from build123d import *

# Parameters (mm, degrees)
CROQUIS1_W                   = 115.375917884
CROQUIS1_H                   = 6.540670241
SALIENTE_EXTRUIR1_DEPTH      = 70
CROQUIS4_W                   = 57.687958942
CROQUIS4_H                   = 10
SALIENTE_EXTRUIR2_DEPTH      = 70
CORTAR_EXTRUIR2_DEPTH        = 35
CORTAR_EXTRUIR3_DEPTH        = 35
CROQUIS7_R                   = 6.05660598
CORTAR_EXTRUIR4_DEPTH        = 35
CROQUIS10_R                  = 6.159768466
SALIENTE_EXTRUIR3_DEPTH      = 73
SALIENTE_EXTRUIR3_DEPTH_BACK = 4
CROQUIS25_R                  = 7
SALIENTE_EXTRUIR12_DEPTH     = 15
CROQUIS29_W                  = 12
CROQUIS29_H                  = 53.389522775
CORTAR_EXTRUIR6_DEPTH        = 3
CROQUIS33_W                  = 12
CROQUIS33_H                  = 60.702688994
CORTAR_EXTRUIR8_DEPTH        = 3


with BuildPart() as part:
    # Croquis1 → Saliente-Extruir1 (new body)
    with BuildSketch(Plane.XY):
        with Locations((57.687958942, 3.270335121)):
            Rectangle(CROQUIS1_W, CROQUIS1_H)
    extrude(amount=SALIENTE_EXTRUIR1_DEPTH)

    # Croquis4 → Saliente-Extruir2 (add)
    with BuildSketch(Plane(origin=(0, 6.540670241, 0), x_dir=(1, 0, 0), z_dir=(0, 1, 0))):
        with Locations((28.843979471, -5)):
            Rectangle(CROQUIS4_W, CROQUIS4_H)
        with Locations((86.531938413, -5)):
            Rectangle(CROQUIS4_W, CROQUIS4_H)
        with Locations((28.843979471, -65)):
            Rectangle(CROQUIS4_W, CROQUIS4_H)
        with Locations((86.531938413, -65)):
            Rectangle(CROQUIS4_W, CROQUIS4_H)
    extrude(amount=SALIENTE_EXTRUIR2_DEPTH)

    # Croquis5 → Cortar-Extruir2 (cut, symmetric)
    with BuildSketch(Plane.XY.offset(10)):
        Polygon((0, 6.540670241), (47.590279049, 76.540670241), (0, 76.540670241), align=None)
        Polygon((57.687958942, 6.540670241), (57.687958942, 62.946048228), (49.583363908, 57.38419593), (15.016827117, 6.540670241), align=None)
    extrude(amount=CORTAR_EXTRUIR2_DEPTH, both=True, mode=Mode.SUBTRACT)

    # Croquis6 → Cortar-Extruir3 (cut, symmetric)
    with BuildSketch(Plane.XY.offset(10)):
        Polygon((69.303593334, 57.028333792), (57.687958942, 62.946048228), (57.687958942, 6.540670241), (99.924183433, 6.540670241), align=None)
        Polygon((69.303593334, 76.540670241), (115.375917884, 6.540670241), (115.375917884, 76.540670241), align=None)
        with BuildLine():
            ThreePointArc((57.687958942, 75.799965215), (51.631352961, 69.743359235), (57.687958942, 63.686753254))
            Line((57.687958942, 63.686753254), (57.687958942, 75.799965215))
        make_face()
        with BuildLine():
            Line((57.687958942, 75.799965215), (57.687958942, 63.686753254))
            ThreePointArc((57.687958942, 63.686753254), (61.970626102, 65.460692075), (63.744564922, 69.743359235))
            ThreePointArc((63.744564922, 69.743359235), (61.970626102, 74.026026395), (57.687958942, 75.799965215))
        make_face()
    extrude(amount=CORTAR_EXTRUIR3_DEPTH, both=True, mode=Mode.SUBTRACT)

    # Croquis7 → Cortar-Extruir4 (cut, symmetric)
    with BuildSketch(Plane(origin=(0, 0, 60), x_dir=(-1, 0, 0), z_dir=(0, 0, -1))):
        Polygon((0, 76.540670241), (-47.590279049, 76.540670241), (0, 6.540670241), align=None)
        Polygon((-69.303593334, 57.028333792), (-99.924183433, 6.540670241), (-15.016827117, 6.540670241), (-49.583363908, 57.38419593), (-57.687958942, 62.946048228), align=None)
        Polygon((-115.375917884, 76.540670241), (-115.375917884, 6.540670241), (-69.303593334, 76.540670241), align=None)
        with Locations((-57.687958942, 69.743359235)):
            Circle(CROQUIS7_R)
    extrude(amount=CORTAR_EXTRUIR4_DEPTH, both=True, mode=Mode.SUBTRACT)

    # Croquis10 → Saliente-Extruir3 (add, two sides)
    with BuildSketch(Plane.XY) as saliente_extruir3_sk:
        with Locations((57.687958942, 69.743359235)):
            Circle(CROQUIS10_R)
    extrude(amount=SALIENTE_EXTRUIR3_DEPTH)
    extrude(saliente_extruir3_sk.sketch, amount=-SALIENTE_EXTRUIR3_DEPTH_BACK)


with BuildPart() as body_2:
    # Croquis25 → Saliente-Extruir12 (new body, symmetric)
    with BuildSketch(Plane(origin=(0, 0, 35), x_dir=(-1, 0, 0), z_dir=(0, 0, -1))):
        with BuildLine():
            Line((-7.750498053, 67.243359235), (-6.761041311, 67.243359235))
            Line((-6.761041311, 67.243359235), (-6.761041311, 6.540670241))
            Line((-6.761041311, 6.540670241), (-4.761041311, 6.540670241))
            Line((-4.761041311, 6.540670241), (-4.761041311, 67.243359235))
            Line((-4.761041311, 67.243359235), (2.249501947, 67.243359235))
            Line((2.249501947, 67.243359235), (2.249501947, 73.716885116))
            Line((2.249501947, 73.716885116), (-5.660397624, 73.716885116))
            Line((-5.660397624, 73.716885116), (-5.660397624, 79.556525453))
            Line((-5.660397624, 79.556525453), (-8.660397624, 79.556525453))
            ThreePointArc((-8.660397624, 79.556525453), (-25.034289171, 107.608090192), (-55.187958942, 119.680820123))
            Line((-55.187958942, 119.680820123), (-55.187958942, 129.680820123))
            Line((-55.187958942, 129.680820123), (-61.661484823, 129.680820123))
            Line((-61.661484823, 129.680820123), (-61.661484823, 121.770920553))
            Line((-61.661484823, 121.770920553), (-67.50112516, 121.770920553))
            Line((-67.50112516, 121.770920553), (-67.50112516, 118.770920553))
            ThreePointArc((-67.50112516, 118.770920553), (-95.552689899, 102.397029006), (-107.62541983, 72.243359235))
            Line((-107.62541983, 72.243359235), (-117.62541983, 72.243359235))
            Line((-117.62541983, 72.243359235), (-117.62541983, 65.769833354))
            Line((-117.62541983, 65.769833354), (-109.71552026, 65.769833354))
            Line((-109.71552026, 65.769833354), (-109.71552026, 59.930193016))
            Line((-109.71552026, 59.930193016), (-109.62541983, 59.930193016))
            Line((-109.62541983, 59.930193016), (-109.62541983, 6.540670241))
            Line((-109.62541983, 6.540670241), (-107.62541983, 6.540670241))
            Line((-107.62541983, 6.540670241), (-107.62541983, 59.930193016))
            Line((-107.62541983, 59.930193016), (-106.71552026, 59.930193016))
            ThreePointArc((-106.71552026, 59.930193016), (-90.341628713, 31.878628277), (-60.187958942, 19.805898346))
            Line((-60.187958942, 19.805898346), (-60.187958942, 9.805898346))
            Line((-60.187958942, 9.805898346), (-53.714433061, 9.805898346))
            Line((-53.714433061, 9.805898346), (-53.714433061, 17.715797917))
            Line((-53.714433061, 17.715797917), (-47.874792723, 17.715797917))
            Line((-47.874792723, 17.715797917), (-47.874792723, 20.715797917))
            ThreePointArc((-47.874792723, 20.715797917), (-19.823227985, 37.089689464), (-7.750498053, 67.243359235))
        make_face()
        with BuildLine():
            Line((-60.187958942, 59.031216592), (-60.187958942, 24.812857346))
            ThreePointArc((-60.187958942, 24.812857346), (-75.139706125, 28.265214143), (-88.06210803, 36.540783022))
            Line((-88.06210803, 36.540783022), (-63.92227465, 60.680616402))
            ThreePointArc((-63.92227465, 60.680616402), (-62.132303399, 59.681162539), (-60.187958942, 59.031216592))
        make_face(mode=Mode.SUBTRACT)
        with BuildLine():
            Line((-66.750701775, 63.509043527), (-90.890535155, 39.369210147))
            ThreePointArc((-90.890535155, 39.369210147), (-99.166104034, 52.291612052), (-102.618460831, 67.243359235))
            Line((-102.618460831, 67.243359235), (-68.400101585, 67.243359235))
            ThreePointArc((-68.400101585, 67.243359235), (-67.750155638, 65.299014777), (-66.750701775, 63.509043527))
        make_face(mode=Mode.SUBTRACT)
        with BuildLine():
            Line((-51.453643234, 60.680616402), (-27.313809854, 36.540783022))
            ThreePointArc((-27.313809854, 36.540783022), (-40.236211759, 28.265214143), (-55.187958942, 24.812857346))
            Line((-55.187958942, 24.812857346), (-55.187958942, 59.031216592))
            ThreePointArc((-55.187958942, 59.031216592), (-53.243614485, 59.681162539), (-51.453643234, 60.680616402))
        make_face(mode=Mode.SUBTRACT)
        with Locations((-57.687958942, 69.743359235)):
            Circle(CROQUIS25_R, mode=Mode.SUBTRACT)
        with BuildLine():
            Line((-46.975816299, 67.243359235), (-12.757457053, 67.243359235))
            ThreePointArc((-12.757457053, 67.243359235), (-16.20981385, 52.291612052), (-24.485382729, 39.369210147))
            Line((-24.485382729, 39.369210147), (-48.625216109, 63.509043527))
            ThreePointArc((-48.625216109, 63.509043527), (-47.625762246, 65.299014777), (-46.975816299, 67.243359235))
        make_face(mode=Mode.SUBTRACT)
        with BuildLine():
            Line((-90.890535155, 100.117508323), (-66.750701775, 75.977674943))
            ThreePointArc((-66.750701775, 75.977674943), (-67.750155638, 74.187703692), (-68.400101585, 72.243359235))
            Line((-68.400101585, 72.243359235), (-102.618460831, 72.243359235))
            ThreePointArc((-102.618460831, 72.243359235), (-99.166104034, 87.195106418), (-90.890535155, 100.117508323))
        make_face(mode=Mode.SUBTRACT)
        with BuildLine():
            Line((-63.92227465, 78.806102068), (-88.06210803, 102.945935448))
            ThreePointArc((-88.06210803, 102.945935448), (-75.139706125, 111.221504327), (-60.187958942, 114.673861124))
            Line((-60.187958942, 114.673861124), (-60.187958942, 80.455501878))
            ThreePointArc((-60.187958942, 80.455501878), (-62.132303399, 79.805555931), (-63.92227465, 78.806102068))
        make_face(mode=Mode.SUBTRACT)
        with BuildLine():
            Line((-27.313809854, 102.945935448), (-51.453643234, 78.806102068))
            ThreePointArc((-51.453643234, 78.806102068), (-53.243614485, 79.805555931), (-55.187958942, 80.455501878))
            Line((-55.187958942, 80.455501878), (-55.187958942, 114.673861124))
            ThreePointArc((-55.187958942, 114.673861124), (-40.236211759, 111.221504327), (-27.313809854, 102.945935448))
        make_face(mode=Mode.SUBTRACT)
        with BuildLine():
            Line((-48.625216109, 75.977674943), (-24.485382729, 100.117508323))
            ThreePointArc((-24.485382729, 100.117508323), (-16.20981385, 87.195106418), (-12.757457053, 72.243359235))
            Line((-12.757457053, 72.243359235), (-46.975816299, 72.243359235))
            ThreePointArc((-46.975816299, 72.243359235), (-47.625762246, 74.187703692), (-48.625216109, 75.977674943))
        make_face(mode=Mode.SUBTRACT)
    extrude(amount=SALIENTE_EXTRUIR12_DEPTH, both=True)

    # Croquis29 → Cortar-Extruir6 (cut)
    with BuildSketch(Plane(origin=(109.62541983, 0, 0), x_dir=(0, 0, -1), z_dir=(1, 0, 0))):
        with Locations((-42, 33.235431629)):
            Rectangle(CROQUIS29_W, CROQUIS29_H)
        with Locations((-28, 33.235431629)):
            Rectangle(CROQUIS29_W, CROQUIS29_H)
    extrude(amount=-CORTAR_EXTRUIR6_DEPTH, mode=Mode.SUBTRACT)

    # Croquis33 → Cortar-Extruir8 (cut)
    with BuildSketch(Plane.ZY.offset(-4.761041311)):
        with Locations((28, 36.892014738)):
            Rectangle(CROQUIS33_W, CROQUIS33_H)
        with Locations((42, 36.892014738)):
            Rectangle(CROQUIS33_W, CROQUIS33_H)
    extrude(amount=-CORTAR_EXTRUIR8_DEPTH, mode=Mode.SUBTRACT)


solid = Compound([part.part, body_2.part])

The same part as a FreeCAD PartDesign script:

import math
import FreeCAD as App
import Part
import Sketcher
Q = App.Units.Quantity


def add_polygon(sketch, points):
    """Adds a closed chain of lines whose ends are joined by coincident constraints."""
    first, n = sketch.GeometryCount, len(points)
    for a, b in zip(points, points[1:] + points[:1]):
        sketch.addGeometry(Part.LineSegment(App.Vector(*a, 0), App.Vector(*b, 0)), False)
    for i in range(n):
        sketch.addConstraint(Sketcher.Constraint("Coincident", first + i, 2, first + (i + 1) % n, 1))

doc = App.newDocument("Part")
body = doc.addObject("PartDesign::Body", "Body")

sketch1 = body.newObject("Sketcher::SketchObject", "Sketch")
sketch1.AttachmentSupport = (doc.getObject("XY_Plane"), [""])
sketch1.MapMode = "FlatFace"
add_polygon(sketch1, [(0, 7), (0, 0), (115, 0), (115, 7)])
sketch1.addConstraint([
    Sketcher.Constraint("Vertical", 0),
    Sketcher.Constraint("Horizontal", 1),
    Sketcher.Constraint("Vertical", 2),
    Sketcher.Constraint("Horizontal", 3),
    Sketcher.Constraint("Coincident", 0, 2, -1, 1),
    Sketcher.Constraint("DistanceY", 0, 2, 0, 1, Q("6.54067 mm")),
    Sketcher.Constraint("DistanceX", 1, 1, 1, 2, Q("115.375918 mm")),
])
pad1 = body.newObject("PartDesign::Pad", "Pad")
pad1.Profile = sketch1
pad1.Length = 70

sketch2 = body.newObject("Sketcher::SketchObject", "Sketch001")
sketch2.AttachmentSupport = (doc.getObject("XZ_Plane"), [""])
sketch2.MapMode = "FlatFace"
sketch2.AttachmentOffset = App.Placement(App.Vector(0, 0, -6.54067), App.Rotation())
add_polygon(sketch2, [(0, 0), (0, 10), (115, 10), (115, 0)])
add_polygon(sketch2, [(0, 60), (0, 70), (115, 70), (115, 60)])
sketch2.addConstraint([
    Sketcher.Constraint("Vertical", 0),
    Sketcher.Constraint("Horizontal", 1),
    Sketcher.Constraint("Vertical", 2),
    Sketcher.Constraint("Horizontal", 3),
    Sketcher.Constraint("Vertical", 4),
    Sketcher.Constraint("Horizontal", 5),
    Sketcher.Constraint("Vertical", 6),
    Sketcher.Constraint("Horizontal", 7),
    Sketcher.Constraint("Coincident", 3, 2, -1, 1),
    Sketcher.Constraint("PointOnObject", 4, 2, -2),
    Sketcher.Constraint("Vertical", 2, 2, 5, 2),
    Sketcher.Constraint("Equal", 2, 4),
    Sketcher.Constraint("DistanceY", 0, 1, 0, 2, Q("10 mm")),
    Sketcher.Constraint("DistanceY", -1, 1, 4, 2, Q("70 mm")),
    Sketcher.Constraint("DistanceX", 1, 1, 1, 2, Q("115.375918 mm")),
])
pad2 = body.newObject("PartDesign::Pad", "Pad001")
pad2.Profile = sketch2
pad2.Length = 70
pad2.Reversed = True

sketch3 = body.newObject("Sketcher::SketchObject", "Sketch002")
sketch3.AttachmentSupport = (doc.getObject("XY_Plane"), [""])
sketch3.MapMode = "FlatFace"
sketch3.AttachmentOffset = App.Placement(App.Vector(0, 0, 10), App.Rotation())
add_polygon(sketch3, [(0, 7), (48, 77), (0, 77)])
add_polygon(sketch3, [(58, 7), (58, 63), (50, 57), (15, 7)])
sketch3.addConstraint([
    Sketcher.Constraint("Horizontal", 1),
    Sketcher.Constraint("Vertical", 2),
    Sketcher.Constraint("Vertical", 3),
    Sketcher.Constraint("Horizontal", 6),
    Sketcher.Constraint("PointOnObject", 1, 2, -2),
    Sketcher.Constraint("Parallel", 0, 5),
    Sketcher.Constraint("Horizontal", 2, 2, 5, 2),
    Sketcher.Constraint("DistanceY", 2, 2, 2, 1, Q("70 mm")),
    Sketcher.Constraint("DistanceX", 1, 2, 1, 1, Q("47.590279 mm")),
    Sketcher.Constraint("DistanceX", 6, 1, 6, 2, Q("42.671132 mm")),
    Sketcher.Constraint("Distance", 4, Q("9.829479 mm")),
    Sketcher.Constraint("Distance", 5, Q("61.480969 mm")),
    Sketcher.Constraint("DistanceY", -1, 1, 0, 2, Q("76.54067 mm")),
    Sketcher.Constraint("DistanceX", -1, 1, 3, 2, Q("57.687959 mm")),
])
pocket1 = body.newObject("PartDesign::Pocket", "Pocket")
pocket1.Profile = sketch3
pocket1.Length = 70
pocket1.Midplane = True

sketch4 = body.newObject("Sketcher::SketchObject", "Sketch003")
sketch4.AttachmentSupport = (doc.getObject("XY_Plane"), [""])
sketch4.MapMode = "FlatFace"
sketch4.AttachmentOffset = App.Placement(App.Vector(0, 0, 10), App.Rotation())
add_polygon(sketch4, [(69, 57), (58, 63), (58, 7), (100, 7)])
add_polygon(sketch4, [(69, 77), (115, 7), (115, 77)])
sketch4.addGeometry(Part.ArcOfCircle(Part.Circle(App.Vector(58, 70, 0), App.Vector(0, 0, 1), 6), math.radians(90), math.radians(270)), False)
sketch4.addGeometry(Part.ArcOfCircle(Part.Circle(App.Vector(58, 70, 0), App.Vector(0, 0, 1), 6), math.radians(-90), math.radians(0)), False)
sketch4.addGeometry(Part.ArcOfCircle(Part.Circle(App.Vector(58, 70, 0), App.Vector(0, 0, 1), 6), math.radians(0), math.radians(90)), False)
sketch4.addConstraint([
    Sketcher.Constraint("Tangent", 7, 2, 8, 1),
    Sketcher.Constraint("Tangent", 8, 2, 9, 1),
    Sketcher.Constraint("Tangent", 9, 2, 7, 1),
    Sketcher.Constraint("Vertical", 1),
    Sketcher.Constraint("Horizontal", 2),
    Sketcher.Constraint("Vertical", 5),
    Sketcher.Constraint("Horizontal", 6),
    Sketcher.Constraint("Horizontal", 2, 2, 4, 2),
    Sketcher.Constraint("Horizontal", 9, 3, 8, 2),
    Sketcher.Constraint("Vertical", 9, 3, 0, 2),
    Sketcher.Constraint("Vertical", 3, 2, 6, 2),
    Sketcher.Constraint("Vertical", 1, 2, 7, 2),
    Sketcher.Constraint("Vertical", 7, 2, 9, 2),
    Sketcher.Constraint("DistanceY", 5, 1, 5, 2, Q("70 mm")),
    Sketcher.Constraint("Radius", 7, Q("6.056606 mm")),
    Sketcher.Constraint("DistanceX", 2, 1, 2, 2, Q("42.236224 mm")),
    Sketcher.Constraint("DistanceX", 6, 2, 6, 1, Q("46.072325 mm")),
    Sketcher.Constraint("DistanceY", 1, 2, 1, 1, Q("56.405378 mm")),
    Sketcher.Constraint("DistanceX", -1, 1, 7, 3, Q("57.687959 mm")),
    Sketcher.Constraint("DistanceY", -1, 1, 7, 3, Q("69.743359 mm")),
    Sketcher.Constraint("DistanceY", -1, 1, 0, 2, Q("62.946048 mm")),
    Sketcher.Constraint("DistanceX", 1, 2, 4, 2, Q("57.687959 mm")),
    Sketcher.Constraint("DistanceY", 3, 2, 7, 2, Q("6.658419 mm")),
])
pocket2 = body.newObject("PartDesign::Pocket", "Pocket001")
pocket2.Profile = sketch4
pocket2.Length = 70
pocket2.Midplane = True

sketch5 = body.newObject("Sketcher::SketchObject", "Sketch004")
sketch5.AttachmentSupport = (doc.getObject("XY_Plane"), [""])
sketch5.MapMode = "FlatFace"
sketch5.AttachmentOffset = App.Placement(App.Vector(0, 0, 60), App.Rotation())
add_polygon(sketch5, [(0, 77), (48, 77), (0, 7)])
add_polygon(sketch5, [(69, 57), (100, 7), (15, 7), (50, 57), (58, 63)])
add_polygon(sketch5, [(115, 77), (115, 7), (69, 77)])
sketch5.addGeometry(Part.Circle(App.Vector(58, 70, 0), App.Vector(0, 0, 1), 6), False)
sketch5.addConstraint([
    Sketcher.Constraint("Horizontal", 0),
    Sketcher.Constraint("Vertical", 2),
    Sketcher.Constraint("Horizontal", 4),
    Sketcher.Constraint("Vertical", 8),
    Sketcher.Constraint("Horizontal", 10),
    Sketcher.Constraint("PointOnObject", 1, 2, -2),
    Sketcher.Constraint("Parallel", 1, 5),
    Sketcher.Constraint("Horizontal", 1, 2, 3, 2),
    Sketcher.Constraint("Horizontal", 4, 2, 8, 2),
    Sketcher.Constraint("Horizontal", 2, 2, 9, 2),
    Sketcher.Constraint("Vertical", 11, 3, 6, 2),
    Sketcher.Constraint("Vertical", 7, 2, 9, 2),
    Sketcher.Constraint("DistanceY", 2, 1, 2, 2, Q("70 mm")),
    Sketcher.Constraint("Diameter", 11, Q("12.113212 mm")),
    Sketcher.Constraint("DistanceX", 0, 1, 0, 2, Q("47.590279 mm")),
    Sketcher.Constraint("Distance", 5, Q("61.480969 mm")),
    Sketcher.Constraint("Distance", 6, Q("9.829479 mm")),
    Sketcher.Constraint("DistanceX", 4, 2, 4, 1, Q("84.907356 mm")),
    Sketcher.Constraint("DistanceX", 10, 1, 10, 2, Q("46.072325 mm")),
    Sketcher.Constraint("DistanceX", -1, 1, 11, 3, Q("57.687959 mm")),
    Sketcher.Constraint("DistanceY", -1, 1, 11, 3, Q("69.743359 mm")),
    Sketcher.Constraint("DistanceY", -1, 1, 0, 2, Q("76.54067 mm")),
    Sketcher.Constraint("DistanceY", -1, 1, 6, 2, Q("62.946048 mm")),
    Sketcher.Constraint("DistanceX", 5, 2, 7, 2, Q("19.720229 mm")),
    Sketcher.Constraint("Distance", 3, Q("59.047648 mm")),
])
pocket3 = body.newObject("PartDesign::Pocket", "Pocket002")
pocket3.Profile = sketch5
pocket3.Length = 70
pocket3.Midplane = True

sketch6 = body.newObject("Sketcher::SketchObject", "Sketch005")
sketch6.AttachmentSupport = (doc.getObject("XY_Plane"), [""])
sketch6.MapMode = "FlatFace"
sketch6.addGeometry(Part.Circle(App.Vector(58, 70, 0), App.Vector(0, 0, 1), 6), False)
sketch6.addConstraint([
    Sketcher.Constraint("Diameter", 0, Q("12.319537 mm")),
    Sketcher.Constraint("DistanceX", -1, 1, 0, 3, Q("57.687959 mm")),
    Sketcher.Constraint("DistanceY", -1, 1, 0, 3, Q("69.743359 mm")),
])
pad3 = body.newObject("PartDesign::Pad", "Pad002")
pad3.Profile = sketch6
pad3.Type = "TwoLengths"
pad3.Length = 73
pad3.Length2 = 4
body2 = doc.addObject("PartDesign::Body", "Body001")

sketch7 = body2.newObject("Sketcher::SketchObject", "Sketch006")
sketch7.AttachmentSupport = (doc.getObject("XY_Plane001"), [""])
sketch7.MapMode = "FlatFace"
sketch7.AttachmentOffset = App.Placement(App.Vector(0, 0, 35), App.Rotation())
sketch7.addGeometry([
    Part.LineSegment(App.Vector(7.75, 67.24, 0), App.Vector(6.76, 67.24, 0)),
    Part.LineSegment(App.Vector(6.76, 67.24, 0), App.Vector(6.76, 6.54, 0)),
    Part.LineSegment(App.Vector(6.76, 6.54, 0), App.Vector(4.76, 6.54, 0)),
    Part.LineSegment(App.Vector(4.76, 6.54, 0), App.Vector(4.76, 67.24, 0)),
    Part.LineSegment(App.Vector(4.76, 67.24, 0), App.Vector(-2.25, 67.24, 0)),
    Part.LineSegment(App.Vector(-2.25, 67.24, 0), App.Vector(-2.25, 73.72, 0)),
    Part.LineSegment(App.Vector(-2.25, 73.72, 0), App.Vector(5.66, 73.72, 0)),
    Part.LineSegment(App.Vector(5.66, 73.72, 0), App.Vector(5.66, 79.56, 0)),
    Part.LineSegment(App.Vector(5.66, 79.56, 0), App.Vector(8.66, 79.56, 0)),
    Part.ArcOfCircle(Part.Circle(App.Vector(57.69, 69.74, 0), App.Vector(0, 0, 1), 50), math.radians(93), math.radians(169)),
    Part.LineSegment(App.Vector(55.19, 119.68, 0), App.Vector(55.19, 129.68, 0)),
    Part.LineSegment(App.Vector(55.19, 129.68, 0), App.Vector(61.66, 129.68, 0)),
    Part.LineSegment(App.Vector(61.66, 129.68, 0), App.Vector(61.66, 121.77, 0)),
    Part.LineSegment(App.Vector(61.66, 121.77, 0), App.Vector(67.5, 121.77, 0)),
    Part.LineSegment(App.Vector(67.5, 121.77, 0), App.Vector(67.5, 118.77, 0)),
    Part.ArcOfCircle(Part.Circle(App.Vector(57.69, 69.74, 0), App.Vector(0, 0, 1), 50), math.radians(3), math.radians(79)),
    Part.LineSegment(App.Vector(107.63, 72.24, 0), App.Vector(117.63, 72.24, 0)),
    Part.LineSegment(App.Vector(117.63, 72.24, 0), App.Vector(117.63, 65.77, 0)),
    Part.LineSegment(App.Vector(117.63, 65.77, 0), App.Vector(109.72, 65.77, 0)),
    Part.LineSegment(App.Vector(109.72, 65.77, 0), App.Vector(109.72, 59.93, 0)),
    Part.LineSegment(App.Vector(109.72, 59.93, 0), App.Vector(109.63, 59.93, 0)),
    Part.LineSegment(App.Vector(109.63, 59.93, 0), App.Vector(109.63, 6.54, 0)),
    Part.LineSegment(App.Vector(109.63, 6.54, 0), App.Vector(107.63, 6.54, 0)),
    Part.LineSegment(App.Vector(107.63, 6.54, 0), App.Vector(107.63, 59.93, 0)),
    Part.LineSegment(App.Vector(107.63, 59.93, 0), App.Vector(106.72, 59.93, 0)),
    Part.ArcOfCircle(Part.Circle(App.Vector(57.69, 69.74, 0), App.Vector(0, 0, 1), 50), math.radians(-87), math.radians(-11)),
    Part.LineSegment(App.Vector(60.19, 19.81, 0), App.Vector(60.19, 9.81, 0)),
    Part.LineSegment(App.Vector(60.19, 9.81, 0), App.Vector(53.71, 9.81, 0)),
    Part.LineSegment(App.Vector(53.71, 9.81, 0), App.Vector(53.71, 17.72, 0)),
    Part.LineSegment(App.Vector(53.71, 17.72, 0), App.Vector(47.87, 17.72, 0)),
    Part.LineSegment(App.Vector(47.87, 17.72, 0), App.Vector(47.87, 20.72, 0)),
    Part.ArcOfCircle(Part.Circle(App.Vector(57.69, 69.74, 0), App.Vector(0, 0, 1), 50), math.radians(-177), math.radians(-101)),
    Part.ArcOfCircle(Part.Circle(App.Vector(57.69, 69.74, 0), App.Vector(0, 0, 1), 11), math.radians(-77), math.radians(-55)),
    Part.LineSegment(App.Vector(60.19, 59.03, 0), App.Vector(60.19, 24.81, 0)),
    Part.ArcOfCircle(Part.Circle(App.Vector(57.69, 69.74, 0), App.Vector(0, 0, 1), 45), math.radians(-87), math.radians(-48)),
    Part.LineSegment(App.Vector(88.06, 36.54, 0), App.Vector(63.92, 60.68, 0)),
    Part.ArcOfCircle(Part.Circle(App.Vector(57.69, 69.74, 0), App.Vector(0, 0, 1), 11), math.radians(-35), math.radians(-13)),
    Part.LineSegment(App.Vector(66.75, 63.51, 0), App.Vector(90.89, 39.37, 0)),
    Part.ArcOfCircle(Part.Circle(App.Vector(57.69, 69.74, 0), App.Vector(0, 0, 1), 45), math.radians(-42), math.radians(-3)),
    Part.LineSegment(App.Vector(102.62, 67.24, 0), App.Vector(68.4, 67.24, 0)),
    Part.ArcOfCircle(Part.Circle(App.Vector(57.69, 69.74, 0), App.Vector(0, 0, 1), 11), math.radians(-125), math.radians(-103)),
    Part.LineSegment(App.Vector(51.45, 60.68, 0), App.Vector(27.31, 36.54, 0)),
    Part.ArcOfCircle(Part.Circle(App.Vector(57.69, 69.74, 0), App.Vector(0, 0, 1), 45), math.radians(-132), math.radians(-93)),
    Part.LineSegment(App.Vector(55.19, 24.81, 0), App.Vector(55.19, 59.03, 0)),
    Part.ArcOfCircle(Part.Circle(App.Vector(57.69, 69.74, 0), App.Vector(0, 0, 1), 11), math.radians(-167), math.radians(-145)),
    Part.LineSegment(App.Vector(46.98, 67.24, 0), App.Vector(12.76, 67.24, 0)),
    Part.ArcOfCircle(Part.Circle(App.Vector(57.69, 69.74, 0), App.Vector(0, 0, 1), 45), math.radians(-177), math.radians(-138)),
    Part.LineSegment(App.Vector(24.49, 39.37, 0), App.Vector(48.63, 63.51, 0)),
    Part.ArcOfCircle(Part.Circle(App.Vector(57.69, 69.74, 0), App.Vector(0, 0, 1), 45), math.radians(3), math.radians(42)),
    Part.LineSegment(App.Vector(90.89, 100.12, 0), App.Vector(66.75, 75.98, 0)),
    Part.ArcOfCircle(Part.Circle(App.Vector(57.69, 69.74, 0), App.Vector(0, 0, 1), 11), math.radians(13), math.radians(35)),
    Part.LineSegment(App.Vector(68.4, 72.24, 0), App.Vector(102.62, 72.24, 0)),
    Part.Circle(App.Vector(57.69, 69.74, 0), App.Vector(0, 0, 1), 7),
    Part.ArcOfCircle(Part.Circle(App.Vector(57.69, 69.74, 0), App.Vector(0, 0, 1), 11), math.radians(55), math.radians(77)),
    Part.LineSegment(App.Vector(63.92, 78.81, 0), App.Vector(88.06, 102.95, 0)),
    Part.ArcOfCircle(Part.Circle(App.Vector(57.69, 69.74, 0), App.Vector(0, 0, 1), 45), math.radians(48), math.radians(87)),
    Part.LineSegment(App.Vector(60.19, 114.67, 0), App.Vector(60.19, 80.46, 0)),
    Part.ArcOfCircle(Part.Circle(App.Vector(57.69, 69.74, 0), App.Vector(0, 0, 1), 11), math.radians(145), math.radians(167)),
    Part.LineSegment(App.Vector(48.63, 75.98, 0), App.Vector(24.49, 100.12, 0)),
    Part.ArcOfCircle(Part.Circle(App.Vector(57.69, 69.74, 0), App.Vector(0, 0, 1), 45), math.radians(138), math.radians(177)),
    Part.LineSegment(App.Vector(12.76, 72.24, 0), App.Vector(46.98, 72.24, 0)),
    Part.ArcOfCircle(Part.Circle(App.Vector(57.69, 69.74, 0), App.Vector(0, 0, 1), 45), math.radians(93), math.radians(132)),
    Part.LineSegment(App.Vector(27.31, 102.95, 0), App.Vector(51.45, 78.81, 0)),
    Part.ArcOfCircle(Part.Circle(App.Vector(57.69, 69.74, 0), App.Vector(0, 0, 1), 11), math.radians(103), math.radians(125)),
    Part.LineSegment(App.Vector(55.19, 80.46, 0), App.Vector(55.19, 114.67, 0)),
], False)
sketch7.addConstraint([
    Sketcher.Constraint("Coincident", 0, 2, 1, 1),
    Sketcher.Constraint("Coincident", 1, 2, 2, 1),
    Sketcher.Constraint("Coincident", 2, 2, 3, 1),
    Sketcher.Constraint("Coincident", 3, 2, 4, 1),
    Sketcher.Constraint("Coincident", 4, 2, 5, 1),
    Sketcher.Constraint("Coincident", 5, 2, 6, 1),
    Sketcher.Constraint("Coincident", 6, 2, 7, 1),
    Sketcher.Constraint("Coincident", 7, 2, 8, 1),
    Sketcher.Constraint("Coincident", 8, 2, 9, 2),
    Sketcher.Constraint("Coincident", 9, 1, 10, 1),
    Sketcher.Constraint("Coincident", 10, 2, 11, 1),
    Sketcher.Constraint("Coincident", 11, 2, 12, 1),
    Sketcher.Constraint("Coincident", 12, 2, 13, 1),
    Sketcher.Constraint("Coincident", 13, 2, 14, 1),
    Sketcher.Constraint("Coincident", 14, 2, 15, 2),
    Sketcher.Constraint("Coincident", 15, 1, 16, 1),
    Sketcher.Constraint("Coincident", 16, 2, 17, 1),
    Sketcher.Constraint("Coincident", 17, 2, 18, 1),
    Sketcher.Constraint("Coincident", 18, 2, 19, 1),
    Sketcher.Constraint("Coincident", 19, 2, 20, 1),
    Sketcher.Constraint("Coincident", 20, 2, 21, 1),
    Sketcher.Constraint("Coincident", 21, 2, 22, 1),
    Sketcher.Constraint("Coincident", 22, 2, 23, 1),
    Sketcher.Constraint("Coincident", 23, 2, 24, 1),
    Sketcher.Constraint("Coincident", 24, 2, 25, 2),
    Sketcher.Constraint("Coincident", 25, 1, 26, 1),
    Sketcher.Constraint("Coincident", 26, 2, 27, 1),
    Sketcher.Constraint("Coincident", 27, 2, 28, 1),
    Sketcher.Constraint("Coincident", 28, 2, 29, 1),
    Sketcher.Constraint("Coincident", 29, 2, 30, 1),
    Sketcher.Constraint("Coincident", 30, 2, 31, 2),
    Sketcher.Constraint("Coincident", 31, 1, 0, 1),
    Sketcher.Constraint("Coincident", 32, 1, 33, 1),
    Sketcher.Constraint("Coincident", 33, 2, 34, 1),
    Sketcher.Constraint("Coincident", 34, 2, 35, 1),
    Sketcher.Constraint("Coincident", 35, 2, 32, 2),
    Sketcher.Constraint("Coincident", 36, 1, 37, 1),
    Sketcher.Constraint("Coincident", 37, 2, 38, 1),
    Sketcher.Constraint("Coincident", 38, 2, 39, 1),
    Sketcher.Constraint("Coincident", 39, 2, 36, 2),
    Sketcher.Constraint("Coincident", 40, 1, 41, 1),
    Sketcher.Constraint("Coincident", 41, 2, 42, 1),
    Sketcher.Constraint("Coincident", 42, 2, 43, 1),
    Sketcher.Constraint("Coincident", 43, 2, 40, 2),
    Sketcher.Constraint("Coincident", 44, 1, 45, 1),
    Sketcher.Constraint("Coincident", 45, 2, 46, 1),
    Sketcher.Constraint("Coincident", 46, 2, 47, 1),
    Sketcher.Constraint("Coincident", 47, 2, 44, 2),
    Sketcher.Constraint("Coincident", 48, 2, 49, 1),
    Sketcher.Constraint("Coincident", 49, 2, 50, 2),
    Sketcher.Constraint("Coincident", 50, 1, 51, 1),
    Sketcher.Constraint("Coincident", 51, 2, 48, 1),
    Sketcher.Constraint("Coincident", 53, 1, 54, 1),
    Sketcher.Constraint("Coincident", 54, 2, 55, 1),
    Sketcher.Constraint("Coincident", 55, 2, 56, 1),
    Sketcher.Constraint("Coincident", 56, 2, 53, 2),
    Sketcher.Constraint("Coincident", 57, 1, 58, 1),
    Sketcher.Constraint("Coincident", 58, 2, 59, 1),
    Sketcher.Constraint("Coincident", 59, 2, 60, 1),
    Sketcher.Constraint("Coincident", 60, 2, 57, 2),
    Sketcher.Constraint("Coincident", 61, 2, 62, 1),
    Sketcher.Constraint("Coincident", 62, 2, 63, 2),
    Sketcher.Constraint("Coincident", 63, 1, 64, 1),
    Sketcher.Constraint("Coincident", 64, 2, 61, 1),
    Sketcher.Constraint("Horizontal", 0),
    Sketcher.Constraint("Vertical", 1),
    Sketcher.Constraint("Horizontal", 2),
    Sketcher.Constraint("Vertical", 3),
    Sketcher.Constraint("Horizontal", 4),
    Sketcher.Constraint("Vertical", 5),
    Sketcher.Constraint("Horizontal", 6),
    Sketcher.Constraint("Vertical", 7),
    Sketcher.Constraint("Horizontal", 8),
    Sketcher.Constraint("Vertical", 10),
    Sketcher.Constraint("Horizontal", 11),
    Sketcher.Constraint("Vertical", 12),
    Sketcher.Constraint("Horizontal", 13),
    Sketcher.Constraint("Vertical", 14),
    Sketcher.Constraint("Horizontal", 16),
    Sketcher.Constraint("Vertical", 17),
    Sketcher.Constraint("Horizontal", 18),
    Sketcher.Constraint("Vertical", 19),
    Sketcher.Constraint("Horizontal", 20),
    Sketcher.Constraint("Vertical", 21),
    Sketcher.Constraint("Horizontal", 22),
    Sketcher.Constraint("Vertical", 23),
    Sketcher.Constraint("Horizontal", 24),
    Sketcher.Constraint("Vertical", 26),
    Sketcher.Constraint("Horizontal", 27),
    Sketcher.Constraint("Vertical", 28),
    Sketcher.Constraint("Horizontal", 29),
    Sketcher.Constraint("Vertical", 30),
    Sketcher.Constraint("Vertical", 33),
    Sketcher.Constraint("Horizontal", 39),
    Sketcher.Constraint("Vertical", 43),
    Sketcher.Constraint("Horizontal", 45),
    Sketcher.Constraint("Horizontal", 51),
    Sketcher.Constraint("Vertical", 56),
    Sketcher.Constraint("Horizontal", 60),
    Sketcher.Constraint("Vertical", 64),
    Sketcher.Constraint("Coincident", 15, 3, 9, 3),
    Sketcher.Constraint("Coincident", 25, 3, 9, 3),
    Sketcher.Constraint("Coincident", 31, 3, 9, 3),
    Sketcher.Constraint("Coincident", 32, 3, 9, 3),
    Sketcher.Constraint("Coincident", 34, 3, 9, 3),
    Sketcher.Constraint("Coincident", 36, 3, 9, 3),
    Sketcher.Constraint("Coincident", 38, 3, 9, 3),
    Sketcher.Constraint("Coincident", 40, 3, 9, 3),
    Sketcher.Constraint("Coincident", 42, 3, 9, 3),
    Sketcher.Constraint("Coincident", 44, 3, 9, 3),
    Sketcher.Constraint("Coincident", 46, 3, 9, 3),
    Sketcher.Constraint("Coincident", 48, 3, 9, 3),
    Sketcher.Constraint("Coincident", 50, 3, 9, 3),
    Sketcher.Constraint("Coincident", 52, 3, 9, 3),
    Sketcher.Constraint("Coincident", 53, 3, 9, 3),
    Sketcher.Constraint("Coincident", 55, 3, 9, 3),
    Sketcher.Constraint("Coincident", 57, 3, 9, 3),
    Sketcher.Constraint("Coincident", 59, 3, 9, 3),
    Sketcher.Constraint("Coincident", 61, 3, 9, 3),
    Sketcher.Constraint("Coincident", 63, 3, 9, 3),
    Sketcher.Constraint("Equal", 9, 15),
    Sketcher.Constraint("Equal", 15, 25),
    Sketcher.Constraint("Equal", 25, 31),
    Sketcher.Constraint("Equal", 32, 36),
    Sketcher.Constraint("Equal", 34, 38),
    Sketcher.Constraint("Equal", 36, 40),
    Sketcher.Constraint("Equal", 38, 42),
    Sketcher.Constraint("Equal", 40, 44),
    Sketcher.Constraint("Equal", 42, 46),
    Sketcher.Constraint("Equal", 46, 48),
    Sketcher.Constraint("Equal", 44, 50),
    Sketcher.Constraint("Equal", 50, 53),
    Sketcher.Constraint("Equal", 48, 55),
    Sketcher.Constraint("Equal", 53, 57),
    Sketcher.Constraint("Equal", 55, 59),
    Sketcher.Constraint("Equal", 59, 61),
    Sketcher.Constraint("Equal", 57, 63),
    Sketcher.Constraint("Parallel", 35, 37),
    Sketcher.Constraint("Perpendicular", 37, 41),
    Sketcher.Constraint("Parallel", 41, 47),
    Sketcher.Constraint("Parallel", 47, 49),
    Sketcher.Constraint("Parallel", 49, 54),
    Sketcher.Constraint("Perpendicular", 54, 58),
    Sketcher.Constraint("Parallel", 58, 62),
    Sketcher.Constraint("Horizontal", 0, 2, 3, 2),
    Sketcher.Constraint("Horizontal", 2, 2, 21, 2),
    Sketcher.Constraint("Horizontal", 20, 2, 23, 2),
    Sketcher.Constraint("Horizontal", 31, 1, 38, 2),
    Sketcher.Constraint("Horizontal", 35, 2, 40, 1),
    Sketcher.Constraint("Horizontal", 34, 2, 41, 2),
    Sketcher.Constraint("Horizontal", 33, 2, 42, 2),
    Sketcher.Constraint("Horizontal", 39, 2, 44, 1),
    Sketcher.Constraint("Horizontal", 37, 2, 46, 2),
    Sketcher.Constraint("Horizontal", 16, 2, 50, 1),
    Sketcher.Constraint("Horizontal", 49, 2, 57, 1),
    Sketcher.Constraint("Horizontal", 51, 2, 59, 2),
    Sketcher.Constraint("Horizontal", 54, 2, 61, 2),
    Sketcher.Constraint("Horizontal", 56, 2, 63, 1),
    Sketcher.Constraint("Vertical", 15, 1, 22, 2),
    Sketcher.Constraint("Vertical", 26, 2, 32, 1),
    Sketcher.Constraint("Vertical", 10, 2, 42, 2),
    Sketcher.Constraint("Vertical", 37, 2, 48, 2),
    Sketcher.Constraint("Vertical", 39, 2, 50, 1),
    Sketcher.Constraint("Vertical", 35, 2, 53, 1),
    Sketcher.Constraint("Vertical", 33, 2, 55, 2),
    Sketcher.Constraint("Equal", 6, 18),
    Sketcher.Constraint("Equal", 2, 22),
    Sketcher.Constraint("Equal", 11, 27),
    Sketcher.Constraint("Equal", 13, 29),
    Sketcher.Constraint("Equal", 27, 5),
    Sketcher.Constraint("Equal", 29, 7),
    Sketcher.Constraint("Equal", 16, 10),
    Sketcher.Constraint("Equal", 18, 12),
    Sketcher.Constraint("Equal", 8, 14),
    Sketcher.Constraint("Equal", 5, 17),
    Sketcher.Constraint("Equal", 7, 19),
    Sketcher.Constraint("Equal", 10, 26),
    Sketcher.Constraint("Equal", 12, 28),
    Sketcher.Constraint("Equal", 60, 33),
    Sketcher.Constraint("Equal", 35, 37),
    Sketcher.Constraint("Diameter", 52, Q("14 mm")),
    Sketcher.Constraint("Radius", 9, Q("50 mm")),
    Sketcher.Constraint("Radius", 32, Q("11 mm")),
    Sketcher.Constraint("Radius", 34, Q("45 mm")),
    Sketcher.Constraint("DistanceX", 2, 2, 2, 1, Q("2 mm")),
    Sketcher.Constraint("DistanceX", 8, 1, 8, 2, Q("3 mm")),
    Sketcher.Constraint("DistanceX", 16, 1, 16, 2, Q("10 mm")),
    Sketcher.Constraint("DistanceX", 6, 1, 6, 2, Q("7.9099 mm")),
    Sketcher.Constraint("DistanceX", 13, 1, 13, 2, Q("5.83964 mm")),
    Sketcher.Constraint("DistanceX", 39, 2, 39, 1, Q("34.218359 mm")),
    Sketcher.Constraint("DistanceY", 1, 2, 1, 1, Q("60.702689 mm")),
    Sketcher.Constraint("DistanceX", 4, 2, -1, 1, Q("2.249502 mm")),
    Sketcher.Constraint("DistanceY", -1, 1, 25, 1, Q("19.805898 mm")),
    Sketcher.Constraint("DistanceX", -1, 1, 36, 1, Q("66.750702 mm")),
    Sketcher.Constraint("DistanceX", 0, 2, 0, 1, Q("0.989457 mm")),
])
pad4 = body2.newObject("PartDesign::Pad", "Pad003")
pad4.Profile = sketch7
pad4.Length = 30
pad4.Midplane = True

sketch8 = body2.newObject("Sketcher::SketchObject", "Sketch007")
sketch8.AttachmentSupport = (doc.getObject("YZ_Plane001"), [""])
sketch8.MapMode = "FlatFace"
sketch8.AttachmentOffset = App.Placement(App.Vector(0, 0, 109.62542), App.Rotation())
add_polygon(sketch8, [(60, 48), (7, 48), (7, 36), (60, 36)])
add_polygon(sketch8, [(60, 34), (7, 34), (7, 22), (60, 22)])
sketch8.addConstraint([
    Sketcher.Constraint("Horizontal", 0),
    Sketcher.Constraint("Vertical", 1),
    Sketcher.Constraint("Horizontal", 2),
    Sketcher.Constraint("Vertical", 3),
    Sketcher.Constraint("Horizontal", 4),
    Sketcher.Constraint("Vertical", 5),
    Sketcher.Constraint("Horizontal", 6),
    Sketcher.Constraint("Vertical", 7),
    Sketcher.Constraint("Vertical", 1, 2, 4, 2),
    Sketcher.Constraint("Vertical", 3, 2, 6, 2),
    Sketcher.Constraint("Equal", 3, 5),
    Sketcher.Constraint("DistanceY", 1, 2, 1, 1, Q("12 mm")),
    Sketcher.Constraint("DistanceY", -1, 1, 0, 2, Q("48 mm")),
    Sketcher.Constraint("DistanceY", -1, 1, 4, 2, Q("34 mm")),
    Sketcher.Constraint("DistanceX", 0, 2, 0, 1, Q("53.389523 mm")),
    Sketcher.Constraint("DistanceX", -1, 1, 0, 2, Q("6.54067 mm")),
])
pocket4 = body2.newObject("PartDesign::Pocket", "Pocket003")
pocket4.Profile = sketch8
pocket4.Length = 3

sketch9 = body2.newObject("Sketcher::SketchObject", "Sketch008")
sketch9.AttachmentSupport = (doc.getObject("YZ_Plane001"), [""])
sketch9.MapMode = "FlatFace"
sketch9.AttachmentOffset = App.Placement(App.Vector(0, 0, 4.761041), App.Rotation())
add_polygon(sketch9, [(67, 22), (7, 22), (7, 34), (67, 34)])
add_polygon(sketch9, [(67, 36), (7, 36), (7, 48), (67, 48)])
sketch9.addConstraint([
    Sketcher.Constraint("Horizontal", 0),
    Sketcher.Constraint("Vertical", 1),
    Sketcher.Constraint("Horizontal", 2),
    Sketcher.Constraint("Vertical", 3),
    Sketcher.Constraint("Horizontal", 4),
    Sketcher.Constraint("Vertical", 5),
    Sketcher.Constraint("Horizontal", 6),
    Sketcher.Constraint("Vertical", 7),
    Sketcher.Constraint("Vertical", 1, 2, 4, 2),
    Sketcher.Constraint("Vertical", 3, 2, 6, 2),
    Sketcher.Constraint("Equal", 3, 5),
    Sketcher.Constraint("DistanceY", 1, 1, 1, 2, Q("12 mm")),
    Sketcher.Constraint("DistanceY", -1, 1, 0, 2, Q("22 mm")),
    Sketcher.Constraint("DistanceY", -1, 1, 4, 2, Q("36 mm")),
    Sketcher.Constraint("DistanceX", 0, 2, 0, 1, Q("60.702689 mm")),
    Sketcher.Constraint("DistanceX", -1, 1, 0, 2, Q("6.54067 mm")),
])
pocket5 = body2.newObject("PartDesign::Pocket", "Pocket004")
pocket5.Profile = sketch9
pocket5.Length = 3
pocket5.Reversed = True

doc.recompute()
